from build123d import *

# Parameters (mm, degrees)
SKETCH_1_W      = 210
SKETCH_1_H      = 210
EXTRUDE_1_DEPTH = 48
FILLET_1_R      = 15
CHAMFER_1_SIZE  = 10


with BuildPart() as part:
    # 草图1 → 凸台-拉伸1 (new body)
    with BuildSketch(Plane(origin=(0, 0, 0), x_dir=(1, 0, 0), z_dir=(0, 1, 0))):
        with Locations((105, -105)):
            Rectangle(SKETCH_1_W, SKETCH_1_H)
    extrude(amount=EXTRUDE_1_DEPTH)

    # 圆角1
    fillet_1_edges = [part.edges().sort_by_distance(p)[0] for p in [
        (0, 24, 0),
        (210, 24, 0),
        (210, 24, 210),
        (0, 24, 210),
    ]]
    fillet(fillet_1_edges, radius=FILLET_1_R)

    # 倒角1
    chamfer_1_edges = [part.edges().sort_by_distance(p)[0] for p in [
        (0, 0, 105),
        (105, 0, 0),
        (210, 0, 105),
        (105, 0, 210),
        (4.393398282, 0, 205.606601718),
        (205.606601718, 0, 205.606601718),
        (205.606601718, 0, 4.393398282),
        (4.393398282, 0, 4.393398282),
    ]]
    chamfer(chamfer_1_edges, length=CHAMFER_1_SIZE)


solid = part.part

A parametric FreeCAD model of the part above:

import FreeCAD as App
import Part
import Sketcher
from FreeCAD import Vector
Q = App.Units.Quantity


def edges_at(feature, points):
    """Names of the edges that pass closest to the given points."""
    edges = feature.Shape.Edges
    near = lambda p: min(range(len(edges)), key=lambda i: edges[i].distToShape(Part.Vertex(*p))[0])
    return sorted({f"Edge{near(p) + 1}" for p in points})


def add_polygon(sketch, points):
    """Adds a closed chain of lines whose ends are joined by coincident constraints."""
    first, n = sketch.GeometryCount, len(points)
    for a, b in zip(points, points[1:] + points[:1]):
        sketch.addGeometry(Part.LineSegment(App.Vector(*a, 0), App.Vector(*b, 0)), False)
    for i in range(n):
        sketch.addConstraint(Sketcher.Constraint("Coincident", first + i, 2, first + (i + 1) % n, 1))

doc = App.newDocument("Part")
body = doc.addObject("PartDesign::Body", "Body")

sketch1 = body.newObject("Sketcher::SketchObject", "Sketch")
sketch1.AttachmentSupport = (doc.getObject("XZ_Plane"), [""])
sketch1.MapMode = "FlatFace"
add_polygon(sketch1, [(0, 0), (0, 210), (210, 210), (210, 0)])
sketch1.addConstraint([
    Sketcher.Constraint("Vertical", 0),
    Sketcher.Constraint("Horizontal", 1),
    Sketcher.Constraint("Vertical", 2),
    Sketcher.Constraint("Horizontal", 3),
    Sketcher.Constraint("Coincident", 3, 2, -1, 1),
    Sketcher.Constraint("Equal", 3, 0),
    Sketcher.Constraint("DistanceX", 1, 1, 1, 2, Q("210 mm")),
])
pad1 = body.newObject("PartDesign::Pad", "Pad")
pad1.Profile = sketch1
pad1.Length = 48
pad1.Reversed = True
doc.recompute()

fillet = body.newObject("PartDesign::Fillet", "Fillet")
fillet.Base = (pad1, edges_at(pad1, [
    (0, 24, 0),
    (210, 24, 0),
    (210, 24, 210),
    (0, 24, 210),
]))
fillet.Radius = 15
doc.recompute()

chamfer = body.newObject("PartDesign::Chamfer", "Chamfer")
chamfer.Base = (fillet, edges_at(fillet, [
    (0, 0, 105),
    (105, 0, 0),
    (210, 0, 105),
    (105, 0, 210),
    (4.393, 0, 205.607),
    (205.607, 0, 205.607),
    (205.607, 0, 4.393),
    (4.393, 0, 4.393),
]))
chamfer.Size = 10

doc.recompute()
